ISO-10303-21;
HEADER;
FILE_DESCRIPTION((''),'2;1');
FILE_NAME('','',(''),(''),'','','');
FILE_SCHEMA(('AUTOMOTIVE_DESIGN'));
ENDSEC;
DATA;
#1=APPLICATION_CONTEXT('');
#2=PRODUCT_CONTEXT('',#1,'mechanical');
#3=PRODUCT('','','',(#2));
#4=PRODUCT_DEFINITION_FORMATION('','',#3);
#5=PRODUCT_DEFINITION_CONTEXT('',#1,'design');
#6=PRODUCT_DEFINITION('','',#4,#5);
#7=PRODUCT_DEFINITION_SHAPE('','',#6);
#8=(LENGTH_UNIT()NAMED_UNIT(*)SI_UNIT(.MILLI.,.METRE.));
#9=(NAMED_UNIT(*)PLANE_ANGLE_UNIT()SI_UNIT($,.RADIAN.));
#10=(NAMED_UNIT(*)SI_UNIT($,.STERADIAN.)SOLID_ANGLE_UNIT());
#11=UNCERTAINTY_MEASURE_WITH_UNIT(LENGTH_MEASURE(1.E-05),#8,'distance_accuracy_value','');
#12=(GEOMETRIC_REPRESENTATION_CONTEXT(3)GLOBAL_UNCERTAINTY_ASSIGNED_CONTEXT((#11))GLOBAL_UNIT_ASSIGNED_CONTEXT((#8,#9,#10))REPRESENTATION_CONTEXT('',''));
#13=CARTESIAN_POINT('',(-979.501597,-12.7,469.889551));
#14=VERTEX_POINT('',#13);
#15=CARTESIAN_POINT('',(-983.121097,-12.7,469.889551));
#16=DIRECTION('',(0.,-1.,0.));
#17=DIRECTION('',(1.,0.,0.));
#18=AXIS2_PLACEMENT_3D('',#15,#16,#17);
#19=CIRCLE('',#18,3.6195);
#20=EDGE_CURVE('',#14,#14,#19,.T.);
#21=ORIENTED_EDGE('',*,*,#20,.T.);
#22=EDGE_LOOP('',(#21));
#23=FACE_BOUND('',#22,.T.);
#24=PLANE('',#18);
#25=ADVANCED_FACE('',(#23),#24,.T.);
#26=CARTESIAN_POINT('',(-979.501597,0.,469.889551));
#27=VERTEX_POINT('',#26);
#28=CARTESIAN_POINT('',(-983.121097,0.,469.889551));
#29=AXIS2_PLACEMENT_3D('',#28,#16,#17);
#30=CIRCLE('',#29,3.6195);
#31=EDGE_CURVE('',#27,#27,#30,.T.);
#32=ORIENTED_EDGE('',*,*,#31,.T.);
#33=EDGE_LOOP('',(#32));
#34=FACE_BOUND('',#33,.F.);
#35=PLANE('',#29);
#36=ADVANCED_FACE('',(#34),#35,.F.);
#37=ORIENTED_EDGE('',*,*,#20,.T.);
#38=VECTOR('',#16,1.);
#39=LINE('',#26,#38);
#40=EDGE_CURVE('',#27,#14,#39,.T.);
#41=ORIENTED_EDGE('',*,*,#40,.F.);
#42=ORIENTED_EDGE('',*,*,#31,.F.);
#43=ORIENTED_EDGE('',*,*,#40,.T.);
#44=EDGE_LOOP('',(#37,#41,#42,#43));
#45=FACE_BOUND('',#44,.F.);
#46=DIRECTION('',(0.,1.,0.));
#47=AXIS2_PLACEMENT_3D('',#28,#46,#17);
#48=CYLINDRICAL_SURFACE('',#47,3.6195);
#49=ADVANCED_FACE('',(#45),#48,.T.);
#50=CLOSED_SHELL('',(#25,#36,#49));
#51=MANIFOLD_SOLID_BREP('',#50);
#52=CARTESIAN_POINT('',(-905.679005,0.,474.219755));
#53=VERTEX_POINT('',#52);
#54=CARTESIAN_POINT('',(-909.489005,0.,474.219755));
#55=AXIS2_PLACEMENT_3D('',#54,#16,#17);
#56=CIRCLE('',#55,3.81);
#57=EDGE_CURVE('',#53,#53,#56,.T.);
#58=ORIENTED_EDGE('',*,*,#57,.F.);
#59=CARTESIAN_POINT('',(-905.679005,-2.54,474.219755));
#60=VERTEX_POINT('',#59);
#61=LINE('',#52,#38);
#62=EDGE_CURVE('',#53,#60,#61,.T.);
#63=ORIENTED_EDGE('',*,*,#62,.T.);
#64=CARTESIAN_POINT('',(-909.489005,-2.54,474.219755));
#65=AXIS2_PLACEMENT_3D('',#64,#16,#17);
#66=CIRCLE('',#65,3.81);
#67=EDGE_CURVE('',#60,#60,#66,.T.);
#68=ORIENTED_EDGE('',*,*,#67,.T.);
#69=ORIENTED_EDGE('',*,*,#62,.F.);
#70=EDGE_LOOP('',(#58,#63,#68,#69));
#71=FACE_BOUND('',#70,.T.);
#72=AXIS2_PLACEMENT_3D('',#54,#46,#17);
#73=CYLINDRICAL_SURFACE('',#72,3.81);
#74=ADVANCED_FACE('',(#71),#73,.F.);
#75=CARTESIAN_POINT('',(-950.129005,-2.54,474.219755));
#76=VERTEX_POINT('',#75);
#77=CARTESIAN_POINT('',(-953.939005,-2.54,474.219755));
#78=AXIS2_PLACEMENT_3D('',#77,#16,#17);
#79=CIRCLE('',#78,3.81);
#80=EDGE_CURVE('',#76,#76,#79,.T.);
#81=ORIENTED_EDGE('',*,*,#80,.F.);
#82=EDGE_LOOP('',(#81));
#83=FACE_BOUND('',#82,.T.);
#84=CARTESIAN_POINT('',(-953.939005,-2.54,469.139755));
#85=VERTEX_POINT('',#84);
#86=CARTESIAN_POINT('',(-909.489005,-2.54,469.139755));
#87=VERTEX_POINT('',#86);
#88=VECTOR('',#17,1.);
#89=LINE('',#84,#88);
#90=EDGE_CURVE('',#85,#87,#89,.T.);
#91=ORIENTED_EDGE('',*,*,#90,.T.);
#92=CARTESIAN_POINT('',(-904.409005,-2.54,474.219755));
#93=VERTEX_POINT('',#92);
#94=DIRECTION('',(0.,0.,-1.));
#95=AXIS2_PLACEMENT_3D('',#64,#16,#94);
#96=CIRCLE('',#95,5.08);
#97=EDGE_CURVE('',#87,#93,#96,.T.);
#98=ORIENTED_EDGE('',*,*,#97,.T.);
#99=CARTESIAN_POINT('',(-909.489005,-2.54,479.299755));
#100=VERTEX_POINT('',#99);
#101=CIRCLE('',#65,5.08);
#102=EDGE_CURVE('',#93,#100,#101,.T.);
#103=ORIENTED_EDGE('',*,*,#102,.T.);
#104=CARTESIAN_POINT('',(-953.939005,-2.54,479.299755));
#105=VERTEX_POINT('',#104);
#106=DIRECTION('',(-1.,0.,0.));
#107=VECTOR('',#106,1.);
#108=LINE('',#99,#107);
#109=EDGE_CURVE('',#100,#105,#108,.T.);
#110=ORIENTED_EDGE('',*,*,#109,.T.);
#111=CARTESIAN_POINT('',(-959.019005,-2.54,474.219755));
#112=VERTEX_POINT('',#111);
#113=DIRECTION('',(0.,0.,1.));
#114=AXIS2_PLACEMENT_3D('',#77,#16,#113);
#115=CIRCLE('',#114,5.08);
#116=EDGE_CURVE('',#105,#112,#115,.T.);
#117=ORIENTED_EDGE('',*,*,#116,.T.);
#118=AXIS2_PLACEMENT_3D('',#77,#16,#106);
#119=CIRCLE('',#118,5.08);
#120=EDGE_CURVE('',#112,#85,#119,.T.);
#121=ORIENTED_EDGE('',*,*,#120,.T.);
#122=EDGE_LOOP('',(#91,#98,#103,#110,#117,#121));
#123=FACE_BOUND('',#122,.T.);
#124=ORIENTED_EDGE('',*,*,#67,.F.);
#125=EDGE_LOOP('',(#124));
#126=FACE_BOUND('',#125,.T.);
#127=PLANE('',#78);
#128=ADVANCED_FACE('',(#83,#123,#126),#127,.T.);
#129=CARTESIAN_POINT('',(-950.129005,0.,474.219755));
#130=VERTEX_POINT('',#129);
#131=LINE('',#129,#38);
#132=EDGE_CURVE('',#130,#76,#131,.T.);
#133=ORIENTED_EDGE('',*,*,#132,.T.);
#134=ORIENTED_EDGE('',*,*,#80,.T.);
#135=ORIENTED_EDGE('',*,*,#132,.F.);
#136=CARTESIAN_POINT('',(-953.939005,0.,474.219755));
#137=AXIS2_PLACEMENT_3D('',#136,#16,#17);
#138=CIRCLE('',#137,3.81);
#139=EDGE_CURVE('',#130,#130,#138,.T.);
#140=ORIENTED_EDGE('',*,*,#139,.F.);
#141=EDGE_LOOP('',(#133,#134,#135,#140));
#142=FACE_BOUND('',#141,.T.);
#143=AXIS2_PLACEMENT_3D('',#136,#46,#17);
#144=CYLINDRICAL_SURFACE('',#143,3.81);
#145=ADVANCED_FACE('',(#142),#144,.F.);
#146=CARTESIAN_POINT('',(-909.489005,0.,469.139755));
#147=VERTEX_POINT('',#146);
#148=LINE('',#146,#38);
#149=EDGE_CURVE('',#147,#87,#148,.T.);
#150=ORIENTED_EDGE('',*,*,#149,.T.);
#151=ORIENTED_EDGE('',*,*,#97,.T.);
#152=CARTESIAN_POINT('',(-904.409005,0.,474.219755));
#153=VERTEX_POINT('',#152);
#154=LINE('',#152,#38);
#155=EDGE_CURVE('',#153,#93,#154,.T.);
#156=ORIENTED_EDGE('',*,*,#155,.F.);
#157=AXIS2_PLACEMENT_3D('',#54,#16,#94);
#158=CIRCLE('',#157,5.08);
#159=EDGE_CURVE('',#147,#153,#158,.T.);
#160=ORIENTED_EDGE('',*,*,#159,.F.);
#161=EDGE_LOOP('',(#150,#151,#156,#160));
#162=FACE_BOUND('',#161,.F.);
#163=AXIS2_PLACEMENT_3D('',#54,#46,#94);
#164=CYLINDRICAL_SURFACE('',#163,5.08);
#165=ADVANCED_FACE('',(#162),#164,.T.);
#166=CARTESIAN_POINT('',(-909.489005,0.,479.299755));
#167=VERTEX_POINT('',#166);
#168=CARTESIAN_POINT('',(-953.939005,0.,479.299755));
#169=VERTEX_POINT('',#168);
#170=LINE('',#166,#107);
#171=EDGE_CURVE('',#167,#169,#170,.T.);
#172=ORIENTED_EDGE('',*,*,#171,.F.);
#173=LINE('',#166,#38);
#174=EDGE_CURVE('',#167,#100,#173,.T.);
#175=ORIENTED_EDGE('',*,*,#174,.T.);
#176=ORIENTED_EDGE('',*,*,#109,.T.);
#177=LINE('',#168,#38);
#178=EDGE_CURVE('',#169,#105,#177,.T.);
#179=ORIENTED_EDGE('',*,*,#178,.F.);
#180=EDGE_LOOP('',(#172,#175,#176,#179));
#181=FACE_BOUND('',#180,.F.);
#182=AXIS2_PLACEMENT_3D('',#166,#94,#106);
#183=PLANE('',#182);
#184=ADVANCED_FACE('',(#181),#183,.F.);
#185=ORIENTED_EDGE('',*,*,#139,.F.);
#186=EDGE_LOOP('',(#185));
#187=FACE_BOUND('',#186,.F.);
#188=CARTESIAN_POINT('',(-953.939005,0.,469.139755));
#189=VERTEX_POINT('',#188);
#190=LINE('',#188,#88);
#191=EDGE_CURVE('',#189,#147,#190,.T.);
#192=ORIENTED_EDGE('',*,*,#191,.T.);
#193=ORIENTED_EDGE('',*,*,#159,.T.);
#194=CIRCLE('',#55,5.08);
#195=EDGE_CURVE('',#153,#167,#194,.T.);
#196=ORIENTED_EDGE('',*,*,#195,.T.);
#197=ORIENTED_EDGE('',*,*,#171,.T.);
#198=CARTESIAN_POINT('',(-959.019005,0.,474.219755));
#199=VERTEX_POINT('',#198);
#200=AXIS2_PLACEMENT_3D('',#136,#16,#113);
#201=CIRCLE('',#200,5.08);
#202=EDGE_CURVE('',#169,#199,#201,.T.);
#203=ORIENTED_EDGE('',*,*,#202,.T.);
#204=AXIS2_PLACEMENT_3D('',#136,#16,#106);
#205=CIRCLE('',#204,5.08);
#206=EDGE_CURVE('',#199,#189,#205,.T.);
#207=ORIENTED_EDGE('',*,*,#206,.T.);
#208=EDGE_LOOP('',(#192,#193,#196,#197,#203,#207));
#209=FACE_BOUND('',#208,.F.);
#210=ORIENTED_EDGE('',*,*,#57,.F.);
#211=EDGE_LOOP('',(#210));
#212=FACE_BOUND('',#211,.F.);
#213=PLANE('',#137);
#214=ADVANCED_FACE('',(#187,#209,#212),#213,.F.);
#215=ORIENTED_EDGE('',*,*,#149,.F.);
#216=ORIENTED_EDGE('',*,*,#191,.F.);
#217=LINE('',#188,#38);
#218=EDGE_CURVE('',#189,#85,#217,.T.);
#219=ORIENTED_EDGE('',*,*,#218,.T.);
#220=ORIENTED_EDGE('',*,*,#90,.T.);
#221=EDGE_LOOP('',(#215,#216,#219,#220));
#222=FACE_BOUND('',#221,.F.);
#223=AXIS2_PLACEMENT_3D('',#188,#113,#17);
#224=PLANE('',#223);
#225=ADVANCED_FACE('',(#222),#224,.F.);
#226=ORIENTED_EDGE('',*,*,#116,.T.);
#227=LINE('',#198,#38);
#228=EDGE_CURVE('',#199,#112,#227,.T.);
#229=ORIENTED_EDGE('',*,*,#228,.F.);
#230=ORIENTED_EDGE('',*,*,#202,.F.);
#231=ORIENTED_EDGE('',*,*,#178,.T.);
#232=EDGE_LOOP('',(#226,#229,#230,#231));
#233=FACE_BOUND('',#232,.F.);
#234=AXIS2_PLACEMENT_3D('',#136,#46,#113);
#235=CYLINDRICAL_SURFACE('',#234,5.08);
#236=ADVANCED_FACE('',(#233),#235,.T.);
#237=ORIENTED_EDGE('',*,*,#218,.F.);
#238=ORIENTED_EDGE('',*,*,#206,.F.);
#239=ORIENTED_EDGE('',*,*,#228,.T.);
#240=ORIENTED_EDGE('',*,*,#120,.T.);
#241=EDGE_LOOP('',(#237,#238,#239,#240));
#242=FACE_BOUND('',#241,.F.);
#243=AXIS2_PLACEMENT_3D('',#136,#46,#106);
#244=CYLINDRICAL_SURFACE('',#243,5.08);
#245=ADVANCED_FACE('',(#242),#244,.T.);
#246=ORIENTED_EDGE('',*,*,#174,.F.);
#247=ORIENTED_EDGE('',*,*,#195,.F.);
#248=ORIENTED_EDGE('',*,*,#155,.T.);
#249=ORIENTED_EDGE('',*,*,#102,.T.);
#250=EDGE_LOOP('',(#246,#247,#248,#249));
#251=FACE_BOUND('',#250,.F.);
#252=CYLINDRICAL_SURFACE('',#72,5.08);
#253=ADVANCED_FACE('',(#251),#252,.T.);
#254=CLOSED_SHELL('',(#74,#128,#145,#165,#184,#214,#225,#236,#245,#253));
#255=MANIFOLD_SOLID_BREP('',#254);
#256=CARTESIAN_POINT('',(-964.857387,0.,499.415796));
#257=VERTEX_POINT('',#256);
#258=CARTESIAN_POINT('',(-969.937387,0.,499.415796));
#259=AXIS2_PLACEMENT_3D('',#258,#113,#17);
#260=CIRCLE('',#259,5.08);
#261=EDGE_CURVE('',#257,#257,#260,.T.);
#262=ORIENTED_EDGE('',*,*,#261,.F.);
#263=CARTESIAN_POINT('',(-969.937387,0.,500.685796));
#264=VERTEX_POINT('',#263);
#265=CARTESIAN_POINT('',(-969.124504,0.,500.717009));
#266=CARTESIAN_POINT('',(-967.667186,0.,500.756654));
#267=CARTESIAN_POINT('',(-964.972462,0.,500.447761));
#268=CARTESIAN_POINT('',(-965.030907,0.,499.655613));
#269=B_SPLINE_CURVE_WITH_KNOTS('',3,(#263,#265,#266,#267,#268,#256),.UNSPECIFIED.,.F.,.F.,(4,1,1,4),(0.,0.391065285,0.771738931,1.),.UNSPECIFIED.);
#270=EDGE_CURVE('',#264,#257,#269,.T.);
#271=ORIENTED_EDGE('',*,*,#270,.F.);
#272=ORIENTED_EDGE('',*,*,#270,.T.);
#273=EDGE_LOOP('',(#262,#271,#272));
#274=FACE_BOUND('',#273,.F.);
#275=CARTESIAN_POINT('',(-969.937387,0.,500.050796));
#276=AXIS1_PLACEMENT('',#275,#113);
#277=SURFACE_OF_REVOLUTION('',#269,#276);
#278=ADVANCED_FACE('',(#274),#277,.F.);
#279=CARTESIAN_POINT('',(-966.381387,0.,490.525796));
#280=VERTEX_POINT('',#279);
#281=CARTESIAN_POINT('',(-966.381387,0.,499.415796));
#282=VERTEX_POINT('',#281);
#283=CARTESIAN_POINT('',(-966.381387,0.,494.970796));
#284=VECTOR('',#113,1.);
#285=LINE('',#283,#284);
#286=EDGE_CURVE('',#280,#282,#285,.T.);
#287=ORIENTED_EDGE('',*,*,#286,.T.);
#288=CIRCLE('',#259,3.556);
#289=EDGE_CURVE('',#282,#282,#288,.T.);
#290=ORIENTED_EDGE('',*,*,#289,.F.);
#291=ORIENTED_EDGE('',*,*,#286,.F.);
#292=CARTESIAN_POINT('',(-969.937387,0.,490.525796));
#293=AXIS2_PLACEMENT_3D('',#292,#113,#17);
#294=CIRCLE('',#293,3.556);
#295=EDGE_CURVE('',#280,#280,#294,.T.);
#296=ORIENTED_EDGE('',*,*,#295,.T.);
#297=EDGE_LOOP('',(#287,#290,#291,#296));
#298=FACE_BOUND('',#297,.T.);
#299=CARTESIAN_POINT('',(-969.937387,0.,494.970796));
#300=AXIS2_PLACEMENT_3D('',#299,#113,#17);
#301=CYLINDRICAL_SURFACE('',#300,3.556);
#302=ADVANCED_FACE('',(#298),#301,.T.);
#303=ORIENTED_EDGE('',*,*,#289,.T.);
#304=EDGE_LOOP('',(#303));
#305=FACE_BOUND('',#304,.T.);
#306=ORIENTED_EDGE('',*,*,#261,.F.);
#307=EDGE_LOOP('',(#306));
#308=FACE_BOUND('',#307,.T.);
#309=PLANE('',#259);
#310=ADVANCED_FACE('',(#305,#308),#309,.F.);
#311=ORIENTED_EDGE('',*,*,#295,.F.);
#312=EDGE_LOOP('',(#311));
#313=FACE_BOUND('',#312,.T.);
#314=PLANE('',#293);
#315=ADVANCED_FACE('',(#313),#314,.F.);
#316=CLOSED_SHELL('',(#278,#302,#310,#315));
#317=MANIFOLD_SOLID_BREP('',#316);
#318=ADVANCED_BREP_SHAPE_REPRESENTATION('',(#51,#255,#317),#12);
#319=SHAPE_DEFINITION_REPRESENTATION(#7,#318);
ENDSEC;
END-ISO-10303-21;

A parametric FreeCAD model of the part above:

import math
import FreeCAD as App
import Part
import Sketcher
from FreeCAD import Vector
Q = App.Units.Quantity

doc = App.newDocument("Part")
body = doc.addObject("PartDesign::Body", "Body")

# Sketch on XZ plane
sketch1 = doc.addObject("Sketcher::SketchObject", "Sketch")
body.addObject(sketch1)
sketch1.AttachmentSupport = (doc.XZ_Plane, [""])
sketch1.MapMode = "FlatFace"
sketch1.addGeometry(Part.Circle(Vector(-983.1, 469.9, 0), Vector(0, 0, 1), 3.6), False)
sketch1.addConstraint([
    Sketcher.Constraint("Diameter", 0, Q("0.285 in")),
    Sketcher.Constraint("DistanceY", -1, 1, 0, 3, Q("469.889551 mm")),
    Sketcher.Constraint("DistanceX", 0, 3, -1, 1, Q("983.121097 mm")),
])
pad1 = doc.addObject("PartDesign::Pad", "Pad")
body.addObject(pad1)
pad1.Profile = sketch1
pad1.Length = Q("0.5 in")
body2 = doc.addObject("PartDesign::Body", "Body001")

# Sketch on XZ plane
sketch2 = doc.addObject("Sketcher::SketchObject", "Sketch001")
body2.addObject(sketch2)
sketch2.AttachmentSupport = (doc.getObject("XZ_Plane001"), [""])
sketch2.MapMode = "FlatFace"
sketch2.addGeometry([
    Part.ArcOfCircle(Part.Circle(Vector(-953.9, 474.2, 0), Vector(0, 0, 1), 5.1), math.radians(90), math.radians(180)),  # 0
    Part.ArcOfCircle(Part.Circle(Vector(-953.9, 474.2, 0), Vector(0, 0, 1), 5.1), math.radians(180), math.radians(270)),  # 1
    Part.LineSegment(Vector(-953.9, 469.1, 0), Vector(-909.5, 469.1, 0)),  # 2
    Part.ArcOfCircle(Part.Circle(Vector(-909.5, 474.2, 0), Vector(0, 0, 1), 5.1), math.radians(-90), math.radians(0)),  # 3
    Part.ArcOfCircle(Part.Circle(Vector(-909.5, 474.2, 0), Vector(0, 0, 1), 5.1), math.radians(0), math.radians(90)),  # 4
    Part.LineSegment(Vector(-909.5, 479.3, 0), Vector(-953.9, 479.3, 0)),  # 5
    Part.Circle(Vector(-953.9, 474.2, 0), Vector(0, 0, 1), 3.8),  # 6
    Part.Circle(Vector(-909.5, 474.2, 0), Vector(0, 0, 1), 3.8),  # 7
], False)
sketch2.addConstraint([
    Sketcher.Constraint("Tangent", 0, 2, 1, 1),
    Sketcher.Constraint("Tangent", 1, 2, 2, 1),
    Sketcher.Constraint("Tangent", 2, 2, 3, 1),
    Sketcher.Constraint("Tangent", 3, 2, 4, 1),
    Sketcher.Constraint("Tangent", 4, 2, 5, 1),
    Sketcher.Constraint("Tangent", 5, 2, 0, 1),
    Sketcher.Constraint("Horizontal", 2),
    Sketcher.Constraint("Horizontal", 5),
    Sketcher.Constraint("Coincident", 6, 3, 0, 3),
    Sketcher.Constraint("Coincident", 7, 3, 3, 3),
    Sketcher.Constraint("Equal", 0, 1),
    Sketcher.Constraint("Equal", 1, 3),
    Sketcher.Constraint("Equal", 6, 7),
    Sketcher.Constraint("Horizontal", 7, 3, 0, 2),
    Sketcher.Constraint("Horizontal", 0, 2, 3, 2),
    Sketcher.Constraint("Diameter", 6, Q("0.3 in")),
    Sketcher.Constraint("Radius", 0, Q("0.2 in")),
    Sketcher.Constraint("DistanceX", 2, 1, 2, 2, Q("1.75 in")),
    Sketcher.Constraint("DistanceX", 0, 3, -1, 1, Q("953.939005 mm")),
    Sketcher.Constraint("DistanceY", -1, 1, 0, 3, Q("474.219755 mm")),
])
pad2 = doc.addObject("PartDesign::Pad", "Pad001")
body2.addObject(pad2)
pad2.Profile = sketch2
pad2.Length = Q("0.1 in")
body3 = doc.addObject("PartDesign::Body", "Body002")

# Sketch on XZ plane
sketch3 = doc.addObject("Sketcher::SketchObject", "Sketch002")
body3.addObject(sketch3)
sketch3.AttachmentSupport = (doc.getObject("XZ_Plane002"), [""])
sketch3.MapMode = "FlatFace"
sketch3.addGeometry([
    Part.LineSegment(Vector(-969.937387, 490.525796, 0), Vector(-966.381387, 490.525796, 0)),  # 0
    Part.LineSegment(Vector(-966.381387, 490.525796, 0), Vector(-966.381387, 499.415796, 0)),  # 1
    Part.LineSegment(Vector(-966.381387, 499.415796, 0), Vector(-964.857387, 499.415796, 0)),  # 2
    Part.BSplineCurve([Vector(-969.937387, 500.685796, 0), Vector(-969.124504, 500.717009, 0), Vector(-967.667186, 500.756654, 0), Vector(-964.972462, 500.447761, 0), Vector(-965.030907, 499.655613, 0), Vector(-964.857387, 499.415796, 0)], [4, 1, 1, 4], [0, 0.391065285, 0.771738931, 1], False, 3, [1, 1, 1, 1, 1, 1], False),  # 3
    Part.LineSegment(Vector(-969.937387, 500.685796, 0), Vector(-969.937387, 490.525796, 0)),  # 4
], False)
sketch3.addGeometry(Part.LineSegment(Vector(-969.937387, 490.525796, 0), Vector(-969.937387, 500.685796, 0)), True)  # axis
sketch3.addConstraint([
    Sketcher.Constraint("Block", 3),
    Sketcher.Constraint("Coincident", 0, 2, 1, 1),
    Sketcher.Constraint("Coincident", 1, 2, 2, 1),
    Sketcher.Constraint("Coincident", 2, 2, 3, 2),
    Sketcher.Constraint("Coincident", 3, 1, 4, 1),
    Sketcher.Constraint("Coincident", 4, 2, 0, 1),
    Sketcher.Constraint("Horizontal", 0),
    Sketcher.Constraint("Vertical", 1),
    Sketcher.Constraint("Horizontal", 2),
    Sketcher.Constraint("Vertical", 4),
    Sketcher.Constraint("Vertical", 5),
    Sketcher.Constraint("Coincident", 5, 1, 4, 2),
    Sketcher.Constraint("Equal", 4, 5),
    Sketcher.Constraint("DistanceY", 4, 2, 4, 1, Q("0.4 in")),
    Sketcher.Constraint("DistanceX", 0, 1, 0, 2, Q("0.14 in")),
])
revolution = doc.addObject("PartDesign::Revolution", "Revolution")
body3.addObject(revolution)
revolution.Profile = sketch3
revolution.ReferenceAxis = (sketch3, ["Axis0"])
revolution.Angle = 360

doc.recompute()
